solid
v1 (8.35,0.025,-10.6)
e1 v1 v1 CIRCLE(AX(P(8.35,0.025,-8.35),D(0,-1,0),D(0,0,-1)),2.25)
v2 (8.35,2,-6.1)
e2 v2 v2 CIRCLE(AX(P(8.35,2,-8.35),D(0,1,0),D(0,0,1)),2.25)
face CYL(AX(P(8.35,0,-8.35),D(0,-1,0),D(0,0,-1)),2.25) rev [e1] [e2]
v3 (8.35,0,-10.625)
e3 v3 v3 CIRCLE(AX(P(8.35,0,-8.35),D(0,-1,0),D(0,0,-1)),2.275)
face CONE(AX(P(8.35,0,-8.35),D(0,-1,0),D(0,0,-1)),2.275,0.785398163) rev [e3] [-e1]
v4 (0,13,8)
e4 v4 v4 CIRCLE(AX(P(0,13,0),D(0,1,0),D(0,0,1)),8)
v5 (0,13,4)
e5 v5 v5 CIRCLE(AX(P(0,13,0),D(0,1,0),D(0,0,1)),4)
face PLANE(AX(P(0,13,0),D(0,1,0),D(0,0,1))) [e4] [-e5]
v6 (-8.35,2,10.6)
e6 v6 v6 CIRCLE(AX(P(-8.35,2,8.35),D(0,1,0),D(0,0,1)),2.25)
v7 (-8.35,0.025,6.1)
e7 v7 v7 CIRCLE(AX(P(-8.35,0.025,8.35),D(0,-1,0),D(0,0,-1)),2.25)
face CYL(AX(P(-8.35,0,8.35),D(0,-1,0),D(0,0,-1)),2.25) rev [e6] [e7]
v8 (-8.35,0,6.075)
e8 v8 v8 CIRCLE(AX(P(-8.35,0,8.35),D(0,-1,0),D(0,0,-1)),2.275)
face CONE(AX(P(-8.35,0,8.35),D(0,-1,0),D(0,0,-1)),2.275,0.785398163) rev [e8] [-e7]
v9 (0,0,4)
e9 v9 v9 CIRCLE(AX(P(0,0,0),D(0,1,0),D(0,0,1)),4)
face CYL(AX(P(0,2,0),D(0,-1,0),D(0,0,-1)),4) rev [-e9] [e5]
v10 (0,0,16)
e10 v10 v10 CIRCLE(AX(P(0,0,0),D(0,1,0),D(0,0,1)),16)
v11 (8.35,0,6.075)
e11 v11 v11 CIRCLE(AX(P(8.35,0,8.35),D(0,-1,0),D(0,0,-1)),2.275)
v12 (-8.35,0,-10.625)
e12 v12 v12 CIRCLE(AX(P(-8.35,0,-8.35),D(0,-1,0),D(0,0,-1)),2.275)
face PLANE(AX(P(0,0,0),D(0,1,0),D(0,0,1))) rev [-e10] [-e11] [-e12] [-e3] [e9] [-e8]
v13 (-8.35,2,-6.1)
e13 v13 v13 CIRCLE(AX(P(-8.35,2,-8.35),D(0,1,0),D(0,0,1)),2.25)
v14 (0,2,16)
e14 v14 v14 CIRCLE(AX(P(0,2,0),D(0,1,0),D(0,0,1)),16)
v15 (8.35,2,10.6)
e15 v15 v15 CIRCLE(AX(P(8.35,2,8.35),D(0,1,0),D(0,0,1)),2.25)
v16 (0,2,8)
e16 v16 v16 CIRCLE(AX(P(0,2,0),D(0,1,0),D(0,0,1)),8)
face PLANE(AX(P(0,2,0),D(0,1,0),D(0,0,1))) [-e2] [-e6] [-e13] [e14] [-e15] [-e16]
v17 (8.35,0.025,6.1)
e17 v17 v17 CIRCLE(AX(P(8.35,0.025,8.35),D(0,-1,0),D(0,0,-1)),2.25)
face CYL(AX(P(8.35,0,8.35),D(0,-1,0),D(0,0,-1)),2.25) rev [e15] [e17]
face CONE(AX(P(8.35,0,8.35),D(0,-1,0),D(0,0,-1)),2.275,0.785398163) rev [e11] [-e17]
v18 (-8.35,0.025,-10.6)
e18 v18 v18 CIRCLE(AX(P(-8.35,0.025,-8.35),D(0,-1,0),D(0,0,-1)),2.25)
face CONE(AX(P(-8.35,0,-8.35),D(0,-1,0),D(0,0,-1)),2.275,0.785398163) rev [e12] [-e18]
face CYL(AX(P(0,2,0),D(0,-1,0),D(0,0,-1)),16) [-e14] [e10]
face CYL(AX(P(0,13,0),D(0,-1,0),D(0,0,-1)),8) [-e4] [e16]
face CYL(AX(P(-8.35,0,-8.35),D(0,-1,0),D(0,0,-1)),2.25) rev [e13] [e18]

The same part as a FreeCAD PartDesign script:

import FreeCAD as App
import Part
import Sketcher
Q = App.Units.Quantity

doc = App.newDocument("Part")
body = doc.addObject("PartDesign::Body", "Body")

# Sketch on XZ plane
sketch1 = body.newObject("Sketcher::SketchObject", "Sketch")
sketch1.AttachmentSupport = (doc.getObject("XZ_Plane"), [""])
sketch1.MapMode = "FlatFace"
sketch1.addGeometry([
    Part.Circle(App.Vector(0, 0, 0), App.Vector(0, 0, 1), 16),
    Part.Circle(App.Vector(0, 0, 0), App.Vector(0, 0, 1), 4),
], False)
sketch1.addConstraint([
    Sketcher.Constraint("Coincident", 0, 3, -1, 1),
    Sketcher.Constraint("Coincident", 1, 3, -1, 1),
    Sketcher.Constraint("Diameter", 0, Q("32 mm")),
    Sketcher.Constraint("Diameter", 1, Q("8 mm")),
])
pad1 = body.newObject("PartDesign::Pad", "Pad")
pad1.Profile = sketch1
pad1.Length = 2
pad1.Reversed = True

# Sketch on XZ plane
sketch2 = body.newObject("Sketcher::SketchObject", "Sketch001")
sketch2.AttachmentSupport = (doc.getObject("XZ_Plane"), [""])
sketch2.MapMode = "FlatFace"
sketch2.AttachmentOffset = App.Placement(App.Vector(0, 0, -2), App.Rotation())
sketch2.addGeometry([
    Part.Circle(App.Vector(0, 0, 0), App.Vector(0, 0, 1), 8),
    Part.Circle(App.Vector(0, 0, 0), App.Vector(0, 0, 1), 4),
], False)
sketch2.addConstraint([
    Sketcher.Constraint("Coincident", 0, 3, -1, 1),
    Sketcher.Constraint("Coincident", 1, 3, -1, 1),
    Sketcher.Constraint("Diameter", 0, Q("16 mm")),
    Sketcher.Constraint("Diameter", 1, Q("8 mm")),
])
pad2 = body.newObject("PartDesign::Pad", "Pad001")
pad2.Profile = sketch2
pad2.Length = 11
pad2.Reversed = True

# Sketch on XZ plane
sketch3 = body.newObject("Sketcher::SketchObject", "Sketch002")
sketch3.AttachmentSupport = (doc.getObject("XZ_Plane"), [""])
sketch3.MapMode = "FlatFace"
sketch3.addGeometry([
    Part.Circle(App.Vector(8.35, -8.35, 0), App.Vector(0, 0, 1), 2.25),
    Part.Circle(App.Vector(-8.35, -8.35, 0), App.Vector(0, 0, 1), 2.25),
    Part.Circle(App.Vector(-8.35, 8.35, 0), App.Vector(0, 0, 1), 2.25),
    Part.Circle(App.Vector(8.35, 8.35, 0), App.Vector(0, 0, 1), 2.25),
], False)
sketch3.addConstraint([
    Sketcher.Constraint("Equal", 0, 1),
    Sketcher.Constraint("Equal", 1, 2),
    Sketcher.Constraint("Equal", 2, 3),
    Sketcher.Constraint("Symmetric", 0, 3, 2, 3, -1, 1),
    Sketcher.Constraint("Symmetric", 1, 3, 3, 3, -1, 1),
    Sketcher.Constraint("Symmetric", 0, 3, 1, 3, -2),
    Sketcher.Constraint("Diameter", 0, Q("4.5 mm")),
    Sketcher.Constraint("DistanceX", 1, 3, 0, 3, Q("16.7 mm")),
    Sketcher.Constraint("DistanceY", 1, 3, 2, 3, Q("16.7 mm")),
])
doc.recompute()
hole = body.newObject("PartDesign::Hole", "Hole")
hole.Profile = sketch3
hole.ThreadType = "None"
hole.Diameter = 4.5
hole.DepthType = "Dimension"
hole.Depth = 13
hole.DrillPoint = "Angled"
hole.DrillPointAngle = 118
hole.HoleCutType = "Countersink"
hole.HoleCutDiameter = 4.55
hole.HoleCutCountersinkAngle = 90

doc.recompute()
